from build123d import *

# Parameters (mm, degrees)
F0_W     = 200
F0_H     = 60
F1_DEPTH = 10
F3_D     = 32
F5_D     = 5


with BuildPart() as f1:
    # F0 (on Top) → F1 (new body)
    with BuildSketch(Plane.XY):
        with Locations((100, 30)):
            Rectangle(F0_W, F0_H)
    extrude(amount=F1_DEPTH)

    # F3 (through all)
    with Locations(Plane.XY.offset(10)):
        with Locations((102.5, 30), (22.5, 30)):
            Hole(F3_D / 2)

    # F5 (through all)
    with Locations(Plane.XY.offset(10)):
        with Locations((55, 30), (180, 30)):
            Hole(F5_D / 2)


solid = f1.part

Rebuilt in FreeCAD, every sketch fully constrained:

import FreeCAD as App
import Part
import Sketcher

V = App.Vector
Q = App.Units.Quantity


def add_polygon(sketch, points):
    """Adds a closed chain of lines whose ends are joined by coincident constraints."""
    first, n = sketch.GeometryCount, len(points)
    for a, b in zip(points, points[1:] + points[:1]):
        sketch.addGeometry(Part.LineSegment(App.Vector(*a, 0), App.Vector(*b, 0)), False)
    for i in range(n):
        sketch.addConstraint(Sketcher.Constraint("Coincident", first + i, 2, first + (i + 1) % n, 1))

doc = App.newDocument("Part")
body = doc.addObject("PartDesign::Body", "Body")

sketch1 = body.newObject("Sketcher::SketchObject", "Sketch")
sketch1.AttachmentSupport = (doc.getObject("XY_Plane"), [""])
sketch1.MapMode = "FlatFace"
add_polygon(sketch1, [(0, 60), (0, 0), (200, 0), (200, 60)])
sketch1.addConstraint([
    Sketcher.Constraint("Vertical", 0),
    Sketcher.Constraint("Horizontal", 1),
    Sketcher.Constraint("Vertical", 2),
    Sketcher.Constraint("Horizontal", 3),
    Sketcher.Constraint("Coincident", 0, 2, -1, 1),
    Sketcher.Constraint("DistanceX", 1, 1, 1, 2, Q("200 mm")),
    Sketcher.Constraint("DistanceY", 0, 2, 0, 1, Q("60 mm")),
])
pad1 = body.newObject("PartDesign::Pad", "Pad")
pad1.Profile = sketch1
pad1.Length = 10

sketch2 = body.newObject("Sketcher::SketchObject", "Sketch001")
sketch2.AttachmentSupport = (doc.getObject("XY_Plane"), [""])
sketch2.MapMode = "FlatFace"
sketch2.AttachmentOffset = App.Placement(V(0, 0, 10), App.Rotation())
sketch2.addGeometry([
    Part.Circle(V(102.5, 30, 0), V(0, 0, 1), 16),
    Part.Circle(V(22.5, 30, 0), V(0, 0, 1), 16),
], False)
sketch2.addConstraint([
    Sketcher.Constraint("Equal", 0, 1),
    Sketcher.Constraint("Horizontal", 0, 3, 1, 3),
    Sketcher.Constraint("Diameter", 0, Q("32 mm")),
    Sketcher.Constraint("DistanceY", -1, 1, 0, 3, Q("30 mm")),
    Sketcher.Constraint("DistanceX", 1, 3, 0, 3, Q("80 mm")),
    Sketcher.Constraint("DistanceX", -1, 1, 0, 3, Q("102.5 mm")),
])
doc.recompute()
hole = body.newObject("PartDesign::Hole", "Hole")
hole.Profile = sketch2
hole.ThreadType = "None"
hole.Diameter = 32
hole.DepthType = "ThroughAll"

sketch3 = body.newObject("Sketcher::SketchObject", "Sketch002")
sketch3.AttachmentSupport = (doc.getObject("XY_Plane"), [""])
sketch3.MapMode = "FlatFace"
sketch3.AttachmentOffset = App.Placement(V(0, 0, 10), App.Rotation())
sketch3.addGeometry([
    Part.Circle(V(55, 30, 0), V(0, 0, 1), 2.5),
    Part.Circle(V(180, 30, 0), V(0, 0, 1), 2.5),
], False)
sketch3.addConstraint([
    Sketcher.Constraint("Equal", 0, 1),
    Sketcher.Constraint("Horizontal", 0, 3, 1, 3),
    Sketcher.Constraint("Diameter", 0, Q("5 mm")),
    Sketcher.Constraint("DistanceX", -1, 1, 0, 3, Q("55 mm")),
    Sketcher.Constraint("DistanceY", -1, 1, 0, 3, Q("30 mm")),
    Sketcher.Constraint("DistanceX", -1, 1, 1, 3, Q("180 mm")),
])
doc.recompute()
hole2 = body.newObject("PartDesign::Hole", "Hole001")
hole2.Profile = sketch3
hole2.ThreadType = "None"
hole2.Diameter = 5
hole2.DepthType = "ThroughAll"

doc.recompute()
